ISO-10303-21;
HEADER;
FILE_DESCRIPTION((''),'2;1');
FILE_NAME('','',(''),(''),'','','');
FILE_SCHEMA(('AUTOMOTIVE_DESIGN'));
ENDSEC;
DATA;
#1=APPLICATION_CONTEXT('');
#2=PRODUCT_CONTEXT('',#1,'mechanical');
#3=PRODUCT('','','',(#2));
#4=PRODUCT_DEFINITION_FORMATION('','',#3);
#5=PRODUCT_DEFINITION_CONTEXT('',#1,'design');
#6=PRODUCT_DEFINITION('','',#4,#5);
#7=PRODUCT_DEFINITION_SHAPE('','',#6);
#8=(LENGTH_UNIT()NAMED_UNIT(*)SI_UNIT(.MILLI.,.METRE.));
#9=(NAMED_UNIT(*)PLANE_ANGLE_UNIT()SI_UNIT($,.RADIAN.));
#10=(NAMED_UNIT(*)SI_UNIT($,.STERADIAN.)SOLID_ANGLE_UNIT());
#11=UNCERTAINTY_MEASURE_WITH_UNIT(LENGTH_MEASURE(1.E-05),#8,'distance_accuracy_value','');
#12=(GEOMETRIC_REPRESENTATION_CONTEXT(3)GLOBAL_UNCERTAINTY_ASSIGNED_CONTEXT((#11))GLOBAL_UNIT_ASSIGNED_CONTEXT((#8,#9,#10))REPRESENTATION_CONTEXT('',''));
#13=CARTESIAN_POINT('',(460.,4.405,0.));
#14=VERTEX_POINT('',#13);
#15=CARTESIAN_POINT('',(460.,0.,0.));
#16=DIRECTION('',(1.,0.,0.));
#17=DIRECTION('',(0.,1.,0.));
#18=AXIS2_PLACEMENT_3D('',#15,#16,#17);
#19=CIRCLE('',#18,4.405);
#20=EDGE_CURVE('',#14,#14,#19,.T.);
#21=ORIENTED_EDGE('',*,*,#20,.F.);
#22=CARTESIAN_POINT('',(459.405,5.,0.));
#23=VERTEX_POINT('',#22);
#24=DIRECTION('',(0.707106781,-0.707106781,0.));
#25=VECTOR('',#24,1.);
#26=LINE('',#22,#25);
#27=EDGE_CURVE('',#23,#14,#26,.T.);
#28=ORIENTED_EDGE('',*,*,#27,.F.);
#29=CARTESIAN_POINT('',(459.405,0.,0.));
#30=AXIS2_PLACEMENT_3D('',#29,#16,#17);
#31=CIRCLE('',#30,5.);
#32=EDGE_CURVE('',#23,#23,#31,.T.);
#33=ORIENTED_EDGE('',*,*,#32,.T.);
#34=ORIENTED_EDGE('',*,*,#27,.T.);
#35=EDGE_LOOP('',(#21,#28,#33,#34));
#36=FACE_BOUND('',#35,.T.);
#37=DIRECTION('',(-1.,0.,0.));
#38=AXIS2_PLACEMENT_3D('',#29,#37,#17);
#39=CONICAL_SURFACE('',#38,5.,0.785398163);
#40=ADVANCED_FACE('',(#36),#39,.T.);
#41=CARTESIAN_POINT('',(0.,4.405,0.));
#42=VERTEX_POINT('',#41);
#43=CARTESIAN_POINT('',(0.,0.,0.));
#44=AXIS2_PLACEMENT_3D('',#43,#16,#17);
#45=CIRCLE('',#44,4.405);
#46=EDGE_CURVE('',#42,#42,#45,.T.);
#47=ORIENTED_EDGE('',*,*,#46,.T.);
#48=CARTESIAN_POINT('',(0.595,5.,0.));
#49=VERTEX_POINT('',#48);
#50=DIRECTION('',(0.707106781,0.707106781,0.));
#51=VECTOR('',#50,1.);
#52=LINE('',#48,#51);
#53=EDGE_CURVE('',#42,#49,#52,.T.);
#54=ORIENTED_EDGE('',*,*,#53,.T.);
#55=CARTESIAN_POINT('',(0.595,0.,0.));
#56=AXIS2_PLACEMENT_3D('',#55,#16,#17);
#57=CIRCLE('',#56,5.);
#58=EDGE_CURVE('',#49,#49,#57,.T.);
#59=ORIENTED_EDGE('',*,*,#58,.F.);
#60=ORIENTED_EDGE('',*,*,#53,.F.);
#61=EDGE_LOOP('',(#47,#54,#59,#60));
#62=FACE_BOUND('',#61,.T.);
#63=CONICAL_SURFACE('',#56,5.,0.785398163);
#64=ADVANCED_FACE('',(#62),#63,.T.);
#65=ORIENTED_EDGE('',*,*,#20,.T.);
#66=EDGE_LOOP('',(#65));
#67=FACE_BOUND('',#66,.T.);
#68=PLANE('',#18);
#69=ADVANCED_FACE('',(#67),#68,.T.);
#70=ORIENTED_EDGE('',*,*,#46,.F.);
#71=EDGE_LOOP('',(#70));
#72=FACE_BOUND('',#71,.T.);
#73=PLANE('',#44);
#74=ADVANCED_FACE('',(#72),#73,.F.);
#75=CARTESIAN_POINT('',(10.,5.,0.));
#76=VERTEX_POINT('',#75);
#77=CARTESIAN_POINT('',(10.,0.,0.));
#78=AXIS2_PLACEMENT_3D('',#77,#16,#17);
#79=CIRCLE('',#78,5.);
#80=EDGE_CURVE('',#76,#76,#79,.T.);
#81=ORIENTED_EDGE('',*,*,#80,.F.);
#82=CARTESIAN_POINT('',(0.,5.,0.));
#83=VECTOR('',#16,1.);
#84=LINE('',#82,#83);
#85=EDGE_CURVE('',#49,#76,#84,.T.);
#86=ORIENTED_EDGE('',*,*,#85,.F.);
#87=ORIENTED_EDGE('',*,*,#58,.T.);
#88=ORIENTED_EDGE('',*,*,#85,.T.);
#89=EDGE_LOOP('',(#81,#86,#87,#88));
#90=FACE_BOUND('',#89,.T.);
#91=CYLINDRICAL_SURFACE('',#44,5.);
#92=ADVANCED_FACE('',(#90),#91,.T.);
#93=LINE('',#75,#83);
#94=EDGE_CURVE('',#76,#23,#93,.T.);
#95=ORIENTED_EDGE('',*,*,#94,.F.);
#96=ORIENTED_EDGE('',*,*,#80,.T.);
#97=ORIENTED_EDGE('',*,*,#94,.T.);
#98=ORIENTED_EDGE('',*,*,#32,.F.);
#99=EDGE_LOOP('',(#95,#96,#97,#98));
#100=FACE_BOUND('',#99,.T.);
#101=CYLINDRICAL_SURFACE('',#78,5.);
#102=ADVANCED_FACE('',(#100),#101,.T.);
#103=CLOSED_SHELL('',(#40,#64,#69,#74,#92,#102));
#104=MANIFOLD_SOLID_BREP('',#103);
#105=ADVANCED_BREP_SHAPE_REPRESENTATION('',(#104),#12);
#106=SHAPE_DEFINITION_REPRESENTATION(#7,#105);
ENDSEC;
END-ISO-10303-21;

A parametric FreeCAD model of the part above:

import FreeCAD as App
import Part
import Sketcher

V = App.Vector
Q = App.Units.Quantity


def edges_at(feature, points):
    """Names of the edges that pass closest to the given points."""
    edges = feature.Shape.Edges
    near = lambda p: min(range(len(edges)), key=lambda i: edges[i].distToShape(Part.Vertex(*p))[0])
    return sorted({f"Edge{near(p) + 1}" for p in points})


def add_polygon(sketch, points):
    """Adds a closed chain of lines whose ends are joined by coincident constraints."""
    first, n = sketch.GeometryCount, len(points)
    for a, b in zip(points, points[1:] + points[:1]):
        sketch.addGeometry(Part.LineSegment(App.Vector(*a, 0), App.Vector(*b, 0)), False)
    for i in range(n):
        sketch.addConstraint(Sketcher.Constraint("Coincident", first + i, 2, first + (i + 1) % n, 1))

doc = App.newDocument("Part")
body = doc.addObject("PartDesign::Body", "Body")

# Sketch on XY plane
sketch1 = body.newObject("Sketcher::SketchObject", "Sketch")
sketch1.AttachmentSupport = (doc.getObject("XY_Plane"), [""])
sketch1.MapMode = "FlatFace"
add_polygon(sketch1, [(0, 5), (0, 0), (460, 0), (460, 5)])  # lines 0-3
sketch1.addConstraint([
    Sketcher.Constraint("Vertical", 0),
    Sketcher.Constraint("Horizontal", 1),
    Sketcher.Constraint("Vertical", 2),
    Sketcher.Constraint("Horizontal", 3),
    Sketcher.Constraint("Coincident", 0, 2, -1, 1),
    Sketcher.Constraint("DistanceX", 1, 1, 1, 2, Q("460 mm")),
    Sketcher.Constraint("DistanceY", 0, 2, 0, 1, Q("5 mm")),
])
revolution = body.newObject("PartDesign::Revolution", "Revolution")
revolution.Profile = sketch1
revolution.ReferenceAxis = (sketch1, ["H_Axis"])
revolution.Angle = 360
doc.recompute()

chamfer = body.newObject("PartDesign::Chamfer", "Chamfer")
chamfer.Base = (revolution, edges_at(revolution, [(0, -5, 0)]))
chamfer.Size = 0.595
doc.recompute()

chamfer2 = body.newObject("PartDesign::Chamfer", "Chamfer001")
chamfer2.Base = (chamfer, edges_at(chamfer, [(460, -5, 0)]))
chamfer2.Size = 0.595

doc.recompute()
